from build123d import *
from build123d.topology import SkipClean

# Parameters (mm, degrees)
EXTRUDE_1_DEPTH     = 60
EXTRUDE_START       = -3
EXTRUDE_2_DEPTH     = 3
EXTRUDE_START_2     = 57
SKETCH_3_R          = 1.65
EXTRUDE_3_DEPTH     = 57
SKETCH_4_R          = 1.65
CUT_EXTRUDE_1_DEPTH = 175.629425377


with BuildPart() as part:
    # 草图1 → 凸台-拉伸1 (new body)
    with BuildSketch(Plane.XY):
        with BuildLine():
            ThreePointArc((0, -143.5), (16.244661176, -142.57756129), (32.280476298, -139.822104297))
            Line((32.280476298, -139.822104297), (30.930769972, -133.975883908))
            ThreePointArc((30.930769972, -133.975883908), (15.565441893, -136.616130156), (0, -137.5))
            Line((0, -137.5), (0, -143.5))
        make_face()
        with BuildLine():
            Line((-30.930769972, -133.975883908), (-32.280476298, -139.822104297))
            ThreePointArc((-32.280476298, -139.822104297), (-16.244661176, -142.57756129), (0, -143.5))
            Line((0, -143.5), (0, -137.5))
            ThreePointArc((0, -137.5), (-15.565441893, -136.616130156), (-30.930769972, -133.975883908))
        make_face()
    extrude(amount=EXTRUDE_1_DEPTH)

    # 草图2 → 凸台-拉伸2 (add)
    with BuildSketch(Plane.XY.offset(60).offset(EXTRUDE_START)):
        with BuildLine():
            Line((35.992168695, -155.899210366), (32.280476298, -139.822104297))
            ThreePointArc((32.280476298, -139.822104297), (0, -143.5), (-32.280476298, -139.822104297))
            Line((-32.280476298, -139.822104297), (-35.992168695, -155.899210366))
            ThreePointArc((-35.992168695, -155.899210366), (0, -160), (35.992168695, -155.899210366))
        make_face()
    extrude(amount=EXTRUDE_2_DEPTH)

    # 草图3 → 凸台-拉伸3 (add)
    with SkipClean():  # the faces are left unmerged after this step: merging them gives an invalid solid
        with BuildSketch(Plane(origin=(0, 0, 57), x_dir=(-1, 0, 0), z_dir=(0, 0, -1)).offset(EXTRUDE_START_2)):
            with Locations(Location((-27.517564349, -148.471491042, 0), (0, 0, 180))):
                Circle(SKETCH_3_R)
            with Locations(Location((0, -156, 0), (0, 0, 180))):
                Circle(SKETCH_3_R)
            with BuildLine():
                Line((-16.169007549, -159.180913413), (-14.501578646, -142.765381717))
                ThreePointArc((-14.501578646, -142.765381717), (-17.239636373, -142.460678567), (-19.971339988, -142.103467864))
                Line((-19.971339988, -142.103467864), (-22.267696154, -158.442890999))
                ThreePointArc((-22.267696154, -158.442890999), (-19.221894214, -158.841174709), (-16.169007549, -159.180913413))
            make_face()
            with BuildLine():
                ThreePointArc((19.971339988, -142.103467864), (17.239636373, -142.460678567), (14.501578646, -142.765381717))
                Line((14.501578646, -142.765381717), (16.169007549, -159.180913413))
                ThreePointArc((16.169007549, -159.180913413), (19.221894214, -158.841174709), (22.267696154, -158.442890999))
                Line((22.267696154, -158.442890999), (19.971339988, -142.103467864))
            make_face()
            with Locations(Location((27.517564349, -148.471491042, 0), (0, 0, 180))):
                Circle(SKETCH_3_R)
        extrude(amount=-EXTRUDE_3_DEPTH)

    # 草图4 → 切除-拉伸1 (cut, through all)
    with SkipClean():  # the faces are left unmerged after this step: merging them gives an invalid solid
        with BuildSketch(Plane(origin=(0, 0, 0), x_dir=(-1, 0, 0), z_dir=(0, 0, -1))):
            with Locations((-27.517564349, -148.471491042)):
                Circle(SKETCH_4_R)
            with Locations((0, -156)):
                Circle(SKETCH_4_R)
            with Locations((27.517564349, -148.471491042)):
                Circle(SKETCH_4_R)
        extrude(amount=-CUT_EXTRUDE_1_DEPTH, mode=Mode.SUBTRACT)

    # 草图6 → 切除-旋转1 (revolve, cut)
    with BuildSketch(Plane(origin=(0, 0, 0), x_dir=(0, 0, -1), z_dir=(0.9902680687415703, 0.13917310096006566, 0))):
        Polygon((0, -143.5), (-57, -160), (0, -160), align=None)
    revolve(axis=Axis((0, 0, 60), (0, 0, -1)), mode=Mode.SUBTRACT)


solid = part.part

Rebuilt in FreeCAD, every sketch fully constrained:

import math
import FreeCAD as App
import Part
import Sketcher
from FreeCAD import Vector
Q = App.Units.Quantity


def add_polygon(sketch, points):
    """Adds a closed chain of lines whose ends are joined by coincident constraints."""
    first, n = sketch.GeometryCount, len(points)
    for a, b in zip(points, points[1:] + points[:1]):
        sketch.addGeometry(Part.LineSegment(App.Vector(*a, 0), App.Vector(*b, 0)), False)
    for i in range(n):
        sketch.addConstraint(Sketcher.Constraint("Coincident", first + i, 2, first + (i + 1) % n, 1))

doc = App.newDocument("Part")
body = doc.addObject("PartDesign::Body", "Body")

sketch1 = body.newObject("Sketcher::SketchObject", "Sketch")
sketch1.AttachmentSupport = (doc.getObject("XY_Plane"), [""])
sketch1.MapMode = "FlatFace"
sketch1.addGeometry([
    Part.ArcOfCircle(Part.Circle(Vector(0, 0, 0), Vector(0, 0, 1), 143.5), math.radians(-90), math.radians(-77)),
    Part.LineSegment(Vector(32.280476, -139.822104, 0), Vector(30.93077, -133.975884, 0)),
    Part.ArcOfCircle(Part.Circle(Vector(0, 0, 0), Vector(0, 0, 1), 137.5), math.radians(-90), math.radians(-77)),
    Part.ArcOfCircle(Part.Circle(Vector(0, 0, 0), Vector(0, 0, 1), 137.5), math.radians(-103), math.radians(-90)),
    Part.LineSegment(Vector(-30.93077, -133.975884, 0), Vector(-32.280476, -139.822104, 0)),
    Part.ArcOfCircle(Part.Circle(Vector(0, 0, 0), Vector(0, 0, 1), 143.5), math.radians(-103), math.radians(-90)),
], False)
sketch1.addConstraint([
    Sketcher.Constraint("Coincident", 0, 2, 1, 1),
    Sketcher.Constraint("Coincident", 1, 2, 2, 2),
    Sketcher.Constraint("Tangent", 2, 1, 3, 2),
    Sketcher.Constraint("Coincident", 3, 1, 4, 1),
    Sketcher.Constraint("Coincident", 4, 2, 5, 1),
    Sketcher.Constraint("Tangent", 5, 2, 0, 1),
    Sketcher.Constraint("Coincident", 0, 3, -1, 1),
    Sketcher.Constraint("Coincident", 2, 3, -1, 1),
    Sketcher.Constraint("Equal", 2, 3),
    Sketcher.Constraint("Equal", 0, 5),
    Sketcher.Constraint("PointOnObject", 2, 1, -2),
    Sketcher.Constraint("PointOnObject", 5, 2, -2),
    Sketcher.Constraint("Horizontal", 1, 2, 3, 1),
    Sketcher.Constraint("Horizontal", 0, 2, 4, 2),
    Sketcher.Constraint("Radius", 0, Q("143.5 mm")),
    Sketcher.Constraint("Radius", 2, Q("137.5 mm")),
    Sketcher.Constraint("Angle", 1, Q("103 deg")),
    Sketcher.Constraint("DistanceX", -1, 1, 1, 2, Q("30.93077 mm")),
])
pad1 = body.newObject("PartDesign::Pad", "Pad")
pad1.Profile = sketch1
pad1.Length = 60

sketch2 = body.newObject("Sketcher::SketchObject", "Sketch001")
sketch2.AttachmentSupport = (doc.getObject("XY_Plane"), [""])
sketch2.MapMode = "FlatFace"
sketch2.AttachmentOffset = App.Placement(Vector(0, 0, 57), App.Rotation())
sketch2.addGeometry([
    Part.LineSegment(Vector(35.992169, -155.89921, 0), Vector(32.280476, -139.822104, 0)),
    Part.ArcOfCircle(Part.Circle(Vector(0, 0, 0), Vector(0, 0, 1), 143.5), math.radians(-103), math.radians(-77)),
    Part.LineSegment(Vector(-32.280476, -139.822104, 0), Vector(-35.992169, -155.89921, 0)),
    Part.ArcOfCircle(Part.Circle(Vector(0, 0, 0), Vector(0, 0, 1), 160), math.radians(-103), math.radians(-77)),
], False)
sketch2.addConstraint([
    Sketcher.Constraint("Coincident", 0, 2, 1, 2),
    Sketcher.Constraint("Coincident", 1, 1, 2, 1),
    Sketcher.Constraint("Coincident", 2, 2, 3, 1),
    Sketcher.Constraint("Coincident", 3, 2, 0, 1),
    Sketcher.Constraint("Coincident", 1, 3, -1, 1),
    Sketcher.Constraint("Coincident", 3, 3, -1, 1),
    Sketcher.Constraint("Horizontal", 0, 2, 1, 1),
    Sketcher.Constraint("Horizontal", 2, 2, 3, 2),
    Sketcher.Constraint("Radius", 3, Q("160 mm")),
    Sketcher.Constraint("Radius", 1, Q("143.5 mm")),
    Sketcher.Constraint("Angle", 0, Q("103 deg")),
    Sketcher.Constraint("DistanceX", 2, 2, -1, 1, Q("35.992169 mm")),
])
pad2 = body.newObject("PartDesign::Pad", "Pad001")
pad2.Profile = sketch2
pad2.Length = 3

sketch3 = body.newObject("Sketcher::SketchObject", "Sketch002")
sketch3.AttachmentSupport = (doc.getObject("XY_Plane"), [""])
sketch3.MapMode = "FlatFace"
sketch3.addGeometry([
    Part.Circle(Vector(27.517564, -148.471491, 0), Vector(0, 0, 1), 1.65),
    Part.Circle(Vector(0, -156, 0), Vector(0, 0, 1), 1.65),
    Part.LineSegment(Vector(16.169008, -159.180913, 0), Vector(14.501579, -142.765382, 0)),
    Part.ArcOfCircle(Part.Circle(Vector(0, -0.000002, 0), Vector(0, 0, 1), 143.499998), math.radians(-84.2), math.radians(-82)),
    Part.LineSegment(Vector(19.97134, -142.103468, 0), Vector(22.267696, -158.442891, 0)),
    Part.ArcOfCircle(Part.Circle(Vector(0, 0, 0), Vector(0, 0, 1), 160), math.radians(-84.2), math.radians(-82)),
    Part.ArcOfCircle(Part.Circle(Vector(0, -0.000002, 0), Vector(0, 0, 1), 143.499998), math.radians(-98), math.radians(-95.8)),
    Part.LineSegment(Vector(-14.501579, -142.765382, 0), Vector(-16.169008, -159.180913, 0)),
    Part.ArcOfCircle(Part.Circle(Vector(0, 0, 0), Vector(0, 0, 1), 160), math.radians(-98), math.radians(-95.8)),
    Part.LineSegment(Vector(-22.267696, -158.442891, 0), Vector(-19.97134, -142.103468, 0)),
    Part.Circle(Vector(-27.517564, -148.471491, 0), Vector(0, 0, 1), 1.65),
], False)
sketch3.addConstraint([
    Sketcher.Constraint("Coincident", 2, 2, 3, 1),
    Sketcher.Constraint("Coincident", 3, 2, 4, 1),
    Sketcher.Constraint("Coincident", 4, 2, 5, 2),
    Sketcher.Constraint("Coincident", 5, 1, 2, 1),
    Sketcher.Constraint("Coincident", 6, 2, 7, 1),
    Sketcher.Constraint("Coincident", 7, 2, 8, 2),
    Sketcher.Constraint("Coincident", 8, 1, 9, 1),
    Sketcher.Constraint("Coincident", 9, 2, 6, 1),
    Sketcher.Constraint("Coincident", 3, 3, -1, 1),
    Sketcher.Constraint("Coincident", 5, 3, -1, 1),
    Sketcher.Constraint("Coincident", 6, 3, -1, 1),
    Sketcher.Constraint("Coincident", 8, 3, -1, 1),
    Sketcher.Constraint("Equal", 0, 1),
    Sketcher.Constraint("Equal", 3, 6),
    Sketcher.Constraint("Equal", 5, 8),
    Sketcher.Constraint("Equal", 1, 10),
    Sketcher.Constraint("Symmetric", 0, 3, 10, 3, -2),
    Sketcher.Constraint("PointOnObject", 1, 3, -2),
    Sketcher.Constraint("Horizontal", 2, 2, 6, 2),
    Sketcher.Constraint("Horizontal", 5, 1, 7, 2),
    Sketcher.Constraint("Horizontal", 4, 2, 8, 1),
    Sketcher.Constraint("Horizontal", 3, 2, 9, 2),
    Sketcher.Constraint("Radius", 5, Q("160 mm")),
    Sketcher.Constraint("Diameter", 0, Q("3.3 mm")),
    Sketcher.Constraint("Radius", 3, Q("143.499998 mm")),
    Sketcher.Constraint("Angle", 4, Q("-82 deg")),
    Sketcher.Constraint("DistanceY", 1, 3, -1, 1, Q("156 mm")),
    Sketcher.Constraint("Angle", 2, Q("95.8 deg")),
    Sketcher.Constraint("DistanceY", 4, 2, 0, 3, Q("9.9714 mm")),
    Sketcher.Constraint("DistanceY", 0, 3, -1, 1, Q("148.471491 mm")),
    Sketcher.Constraint("DistanceX", -1, 1, 2, 2, Q("14.501579 mm")),
    Sketcher.Constraint("DistanceX", 10, 3, 0, 3, Q("55.035129 mm")),
])
pad3 = body.newObject("PartDesign::Pad", "Pad002")
pad3.Profile = sketch3
pad3.Length = 57

sketch4 = body.newObject("Sketcher::SketchObject", "Sketch003")
sketch4.AttachmentSupport = (doc.getObject("XY_Plane"), [""])
sketch4.MapMode = "FlatFace"
sketch4.addGeometry([
    Part.Circle(Vector(27.517564, -148.471491, 0), Vector(0, 0, 1), 1.65),
    Part.Circle(Vector(0, -156, 0), Vector(0, 0, 1), 1.65),
    Part.Circle(Vector(-27.517564, -148.471491, 0), Vector(0, 0, 1), 1.65),
], False)
sketch4.addConstraint([
    Sketcher.Constraint("Equal", 0, 1),
    Sketcher.Constraint("Equal", 1, 2),
    Sketcher.Constraint("Symmetric", 0, 3, 2, 3, -2),
    Sketcher.Constraint("PointOnObject", 1, 3, -2),
    Sketcher.Constraint("Diameter", 0, Q("3.3 mm")),
    Sketcher.Constraint("DistanceY", 1, 3, -1, 1, Q("156 mm")),
    Sketcher.Constraint("DistanceY", 0, 3, -1, 1, Q("148.471491 mm")),
    Sketcher.Constraint("DistanceX", 2, 3, 0, 3, Q("55.035129 mm")),
])
pocket1 = body.newObject("PartDesign::Pocket", "Pocket")
pocket1.Profile = sketch4
pocket1.Type = "ThroughAll"
pocket1.Reversed = True

sketch5 = body.newObject("Sketcher::SketchObject", "Sketch004")
sketch5.Placement = App.Placement(Vector(0, 0, 0), App.Rotation(Vector(0, 0, -1), Vector(-0.139173101, 0.990268069, 0), Vector(0.990268069, 0.139173101, 0), "ZXY"))
add_polygon(sketch5, [(0, -143.5), (-57, -160), (0, -160)])
sketch5.addConstraint([
    Sketcher.Constraint("Horizontal", 1),
    Sketcher.Constraint("Vertical", 2),
    Sketcher.Constraint("PointOnObject", 1, 2, -2),
    Sketcher.Constraint("DistanceX", 1, 1, 1, 2, Q("57 mm")),
    Sketcher.Constraint("DistanceY", 2, 1, 2, 2, Q("16.5 mm")),
    Sketcher.Constraint("DistanceY", 0, 2, -1, 1, Q("160 mm")),
])
groove = body.newObject("PartDesign::Groove", "Groove")
groove.Profile = sketch5
groove.ReferenceAxis = (sketch5, ["H_Axis"])
groove.Angle = 360

doc.recompute()
